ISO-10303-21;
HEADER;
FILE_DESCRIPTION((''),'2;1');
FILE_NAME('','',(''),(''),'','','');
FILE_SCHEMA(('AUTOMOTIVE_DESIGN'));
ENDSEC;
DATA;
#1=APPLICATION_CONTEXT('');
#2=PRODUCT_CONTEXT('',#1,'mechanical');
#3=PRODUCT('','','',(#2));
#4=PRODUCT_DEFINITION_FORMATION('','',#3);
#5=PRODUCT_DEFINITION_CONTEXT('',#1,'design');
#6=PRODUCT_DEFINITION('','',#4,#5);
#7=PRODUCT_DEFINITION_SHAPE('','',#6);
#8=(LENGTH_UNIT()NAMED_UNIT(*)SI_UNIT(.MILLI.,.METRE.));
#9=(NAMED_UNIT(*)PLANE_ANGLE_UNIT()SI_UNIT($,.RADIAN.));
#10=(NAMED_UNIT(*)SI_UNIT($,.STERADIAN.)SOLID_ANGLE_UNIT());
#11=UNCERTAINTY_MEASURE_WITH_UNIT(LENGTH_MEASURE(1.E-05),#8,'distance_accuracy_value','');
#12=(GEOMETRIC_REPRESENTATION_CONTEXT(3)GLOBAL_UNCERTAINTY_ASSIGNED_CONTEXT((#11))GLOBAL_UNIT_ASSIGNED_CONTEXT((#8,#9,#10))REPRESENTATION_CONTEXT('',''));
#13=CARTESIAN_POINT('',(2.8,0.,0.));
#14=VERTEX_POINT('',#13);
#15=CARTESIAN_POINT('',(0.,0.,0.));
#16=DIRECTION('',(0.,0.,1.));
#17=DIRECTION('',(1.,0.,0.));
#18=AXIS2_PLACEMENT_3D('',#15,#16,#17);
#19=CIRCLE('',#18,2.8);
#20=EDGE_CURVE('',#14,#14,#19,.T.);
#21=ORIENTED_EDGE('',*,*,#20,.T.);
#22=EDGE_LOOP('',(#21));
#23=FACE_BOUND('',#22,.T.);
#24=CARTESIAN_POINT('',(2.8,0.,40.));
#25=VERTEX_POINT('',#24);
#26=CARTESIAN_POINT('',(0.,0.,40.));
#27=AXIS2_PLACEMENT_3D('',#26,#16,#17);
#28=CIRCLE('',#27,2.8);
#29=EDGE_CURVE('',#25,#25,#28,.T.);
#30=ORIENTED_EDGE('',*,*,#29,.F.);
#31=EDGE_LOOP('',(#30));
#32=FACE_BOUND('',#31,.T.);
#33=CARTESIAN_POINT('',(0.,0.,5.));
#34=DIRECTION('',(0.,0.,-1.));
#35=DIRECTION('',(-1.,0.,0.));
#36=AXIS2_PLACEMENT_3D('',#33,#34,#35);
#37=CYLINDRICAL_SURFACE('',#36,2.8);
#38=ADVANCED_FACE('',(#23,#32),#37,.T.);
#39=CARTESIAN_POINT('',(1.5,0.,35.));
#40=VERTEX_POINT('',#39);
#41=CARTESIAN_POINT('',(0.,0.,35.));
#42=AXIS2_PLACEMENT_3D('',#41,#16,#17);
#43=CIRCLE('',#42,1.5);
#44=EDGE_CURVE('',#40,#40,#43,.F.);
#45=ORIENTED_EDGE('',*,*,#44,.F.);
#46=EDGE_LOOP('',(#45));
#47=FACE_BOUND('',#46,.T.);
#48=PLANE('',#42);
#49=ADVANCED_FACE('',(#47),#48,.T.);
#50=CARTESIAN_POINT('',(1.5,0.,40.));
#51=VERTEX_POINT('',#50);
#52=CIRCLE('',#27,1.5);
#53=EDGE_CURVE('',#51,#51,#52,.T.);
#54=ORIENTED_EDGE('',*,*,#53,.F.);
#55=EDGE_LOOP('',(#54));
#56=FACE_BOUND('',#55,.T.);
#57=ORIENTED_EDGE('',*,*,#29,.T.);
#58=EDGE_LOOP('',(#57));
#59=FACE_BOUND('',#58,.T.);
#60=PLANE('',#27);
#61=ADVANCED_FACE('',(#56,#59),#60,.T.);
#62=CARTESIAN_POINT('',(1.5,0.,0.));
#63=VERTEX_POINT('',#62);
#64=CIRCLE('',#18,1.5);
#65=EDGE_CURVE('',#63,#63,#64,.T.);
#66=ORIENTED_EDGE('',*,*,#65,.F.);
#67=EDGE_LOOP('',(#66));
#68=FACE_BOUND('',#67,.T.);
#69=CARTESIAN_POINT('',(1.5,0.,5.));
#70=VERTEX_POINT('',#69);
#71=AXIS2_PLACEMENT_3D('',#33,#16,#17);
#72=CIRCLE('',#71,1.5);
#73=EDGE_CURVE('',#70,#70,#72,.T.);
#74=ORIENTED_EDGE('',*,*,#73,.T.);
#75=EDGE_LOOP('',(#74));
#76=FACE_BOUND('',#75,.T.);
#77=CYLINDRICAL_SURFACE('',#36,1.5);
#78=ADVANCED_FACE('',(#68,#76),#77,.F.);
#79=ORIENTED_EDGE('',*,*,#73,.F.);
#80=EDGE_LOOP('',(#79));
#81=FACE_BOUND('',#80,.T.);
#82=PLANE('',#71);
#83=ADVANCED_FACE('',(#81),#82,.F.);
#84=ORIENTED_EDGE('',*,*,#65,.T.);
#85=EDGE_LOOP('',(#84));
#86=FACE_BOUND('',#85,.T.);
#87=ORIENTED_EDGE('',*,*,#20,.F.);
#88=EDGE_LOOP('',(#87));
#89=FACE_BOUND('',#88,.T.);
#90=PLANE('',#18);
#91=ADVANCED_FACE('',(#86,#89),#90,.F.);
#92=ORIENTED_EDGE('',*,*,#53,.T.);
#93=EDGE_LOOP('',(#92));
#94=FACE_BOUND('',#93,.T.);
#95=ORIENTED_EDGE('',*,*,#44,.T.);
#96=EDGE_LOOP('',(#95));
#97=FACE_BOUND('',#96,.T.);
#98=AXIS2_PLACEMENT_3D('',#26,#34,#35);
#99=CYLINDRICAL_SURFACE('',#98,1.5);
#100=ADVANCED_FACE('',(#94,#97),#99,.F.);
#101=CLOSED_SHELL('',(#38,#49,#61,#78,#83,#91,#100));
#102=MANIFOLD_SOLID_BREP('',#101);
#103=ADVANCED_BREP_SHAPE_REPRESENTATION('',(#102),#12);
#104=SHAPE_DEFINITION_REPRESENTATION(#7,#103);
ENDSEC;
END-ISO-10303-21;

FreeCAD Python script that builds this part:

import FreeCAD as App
import Part
import Sketcher

V = App.Vector
Q = App.Units.Quantity

doc = App.newDocument("Part")
body = doc.addObject("PartDesign::Body", "Body")

# Sketch on XY plane
sketch1 = doc.addObject("Sketcher::SketchObject", "Sketch")
body.addObject(sketch1)
sketch1.AttachmentSupport = (doc.XY_Plane, [""])
sketch1.MapMode = "FlatFace"
sketch1.addGeometry(Part.Circle(V(0, 0, 0), V(0, 0, 1), 2.8), False)
sketch1.addGeometry(Part.Circle(V(0, 0, 0), V(0, 0, 1), 1.5), False)
sketch1.addConstraint(Sketcher.Constraint("Coincident", 0, 3, -1, 1))
sketch1.addConstraint(Sketcher.Constraint("Coincident", 1, 3, -1, 1))
sketch1.addConstraint(Sketcher.Constraint("Diameter", 1, Q("3 mm")))
sketch1.addConstraint(Sketcher.Constraint("Diameter", 0, Q("5.6 mm")))
pad1 = doc.addObject("PartDesign::Pad", "Pad")
body.addObject(pad1)
pad1.Profile = sketch1
pad1.Length = 5

# Sketch on XY plane
sketch2 = doc.addObject("Sketcher::SketchObject", "Sketch001")
body.addObject(sketch2)
sketch2.AttachmentSupport = (doc.XY_Plane, [""])
sketch2.MapMode = "FlatFace"
sketch2.AttachmentOffset = App.Placement(V(0, 0, 5), App.Rotation())
sketch2.addGeometry(Part.Circle(V(0, 0, 0), V(0, 0, 1), 2.8), False)
sketch2.addConstraint(Sketcher.Constraint("Coincident", 0, 3, -1, 1))
sketch2.addConstraint(Sketcher.Constraint("Diameter", 0, Q("5.6 mm")))
pad2 = doc.addObject("PartDesign::Pad", "Pad001")
body.addObject(pad2)
pad2.Profile = sketch2
pad2.Length = 30

# Sketch on XY plane
sketch3 = doc.addObject("Sketcher::SketchObject", "Sketch002")
body.addObject(sketch3)
sketch3.AttachmentSupport = (doc.XY_Plane, [""])
sketch3.MapMode = "FlatFace"
sketch3.AttachmentOffset = App.Placement(V(0, 0, 35), App.Rotation())
sketch3.addGeometry(Part.Circle(V(0, 0, 0), V(0, 0, 1), 2.8), False)
sketch3.addGeometry(Part.Circle(V(0, 0, 0), V(0, 0, 1), 1.5), False)
sketch3.addConstraint(Sketcher.Constraint("Coincident", 0, 3, -1, 1))
sketch3.addConstraint(Sketcher.Constraint("Coincident", 1, 3, -1, 1))
sketch3.addConstraint(Sketcher.Constraint("Diameter", 1, Q("3 mm")))
sketch3.addConstraint(Sketcher.Constraint("Diameter", 0, Q("5.6 mm")))
pad3 = doc.addObject("PartDesign::Pad", "Pad002")
body.addObject(pad3)
pad3.Profile = sketch3
pad3.Length = 5

doc.recompute()
